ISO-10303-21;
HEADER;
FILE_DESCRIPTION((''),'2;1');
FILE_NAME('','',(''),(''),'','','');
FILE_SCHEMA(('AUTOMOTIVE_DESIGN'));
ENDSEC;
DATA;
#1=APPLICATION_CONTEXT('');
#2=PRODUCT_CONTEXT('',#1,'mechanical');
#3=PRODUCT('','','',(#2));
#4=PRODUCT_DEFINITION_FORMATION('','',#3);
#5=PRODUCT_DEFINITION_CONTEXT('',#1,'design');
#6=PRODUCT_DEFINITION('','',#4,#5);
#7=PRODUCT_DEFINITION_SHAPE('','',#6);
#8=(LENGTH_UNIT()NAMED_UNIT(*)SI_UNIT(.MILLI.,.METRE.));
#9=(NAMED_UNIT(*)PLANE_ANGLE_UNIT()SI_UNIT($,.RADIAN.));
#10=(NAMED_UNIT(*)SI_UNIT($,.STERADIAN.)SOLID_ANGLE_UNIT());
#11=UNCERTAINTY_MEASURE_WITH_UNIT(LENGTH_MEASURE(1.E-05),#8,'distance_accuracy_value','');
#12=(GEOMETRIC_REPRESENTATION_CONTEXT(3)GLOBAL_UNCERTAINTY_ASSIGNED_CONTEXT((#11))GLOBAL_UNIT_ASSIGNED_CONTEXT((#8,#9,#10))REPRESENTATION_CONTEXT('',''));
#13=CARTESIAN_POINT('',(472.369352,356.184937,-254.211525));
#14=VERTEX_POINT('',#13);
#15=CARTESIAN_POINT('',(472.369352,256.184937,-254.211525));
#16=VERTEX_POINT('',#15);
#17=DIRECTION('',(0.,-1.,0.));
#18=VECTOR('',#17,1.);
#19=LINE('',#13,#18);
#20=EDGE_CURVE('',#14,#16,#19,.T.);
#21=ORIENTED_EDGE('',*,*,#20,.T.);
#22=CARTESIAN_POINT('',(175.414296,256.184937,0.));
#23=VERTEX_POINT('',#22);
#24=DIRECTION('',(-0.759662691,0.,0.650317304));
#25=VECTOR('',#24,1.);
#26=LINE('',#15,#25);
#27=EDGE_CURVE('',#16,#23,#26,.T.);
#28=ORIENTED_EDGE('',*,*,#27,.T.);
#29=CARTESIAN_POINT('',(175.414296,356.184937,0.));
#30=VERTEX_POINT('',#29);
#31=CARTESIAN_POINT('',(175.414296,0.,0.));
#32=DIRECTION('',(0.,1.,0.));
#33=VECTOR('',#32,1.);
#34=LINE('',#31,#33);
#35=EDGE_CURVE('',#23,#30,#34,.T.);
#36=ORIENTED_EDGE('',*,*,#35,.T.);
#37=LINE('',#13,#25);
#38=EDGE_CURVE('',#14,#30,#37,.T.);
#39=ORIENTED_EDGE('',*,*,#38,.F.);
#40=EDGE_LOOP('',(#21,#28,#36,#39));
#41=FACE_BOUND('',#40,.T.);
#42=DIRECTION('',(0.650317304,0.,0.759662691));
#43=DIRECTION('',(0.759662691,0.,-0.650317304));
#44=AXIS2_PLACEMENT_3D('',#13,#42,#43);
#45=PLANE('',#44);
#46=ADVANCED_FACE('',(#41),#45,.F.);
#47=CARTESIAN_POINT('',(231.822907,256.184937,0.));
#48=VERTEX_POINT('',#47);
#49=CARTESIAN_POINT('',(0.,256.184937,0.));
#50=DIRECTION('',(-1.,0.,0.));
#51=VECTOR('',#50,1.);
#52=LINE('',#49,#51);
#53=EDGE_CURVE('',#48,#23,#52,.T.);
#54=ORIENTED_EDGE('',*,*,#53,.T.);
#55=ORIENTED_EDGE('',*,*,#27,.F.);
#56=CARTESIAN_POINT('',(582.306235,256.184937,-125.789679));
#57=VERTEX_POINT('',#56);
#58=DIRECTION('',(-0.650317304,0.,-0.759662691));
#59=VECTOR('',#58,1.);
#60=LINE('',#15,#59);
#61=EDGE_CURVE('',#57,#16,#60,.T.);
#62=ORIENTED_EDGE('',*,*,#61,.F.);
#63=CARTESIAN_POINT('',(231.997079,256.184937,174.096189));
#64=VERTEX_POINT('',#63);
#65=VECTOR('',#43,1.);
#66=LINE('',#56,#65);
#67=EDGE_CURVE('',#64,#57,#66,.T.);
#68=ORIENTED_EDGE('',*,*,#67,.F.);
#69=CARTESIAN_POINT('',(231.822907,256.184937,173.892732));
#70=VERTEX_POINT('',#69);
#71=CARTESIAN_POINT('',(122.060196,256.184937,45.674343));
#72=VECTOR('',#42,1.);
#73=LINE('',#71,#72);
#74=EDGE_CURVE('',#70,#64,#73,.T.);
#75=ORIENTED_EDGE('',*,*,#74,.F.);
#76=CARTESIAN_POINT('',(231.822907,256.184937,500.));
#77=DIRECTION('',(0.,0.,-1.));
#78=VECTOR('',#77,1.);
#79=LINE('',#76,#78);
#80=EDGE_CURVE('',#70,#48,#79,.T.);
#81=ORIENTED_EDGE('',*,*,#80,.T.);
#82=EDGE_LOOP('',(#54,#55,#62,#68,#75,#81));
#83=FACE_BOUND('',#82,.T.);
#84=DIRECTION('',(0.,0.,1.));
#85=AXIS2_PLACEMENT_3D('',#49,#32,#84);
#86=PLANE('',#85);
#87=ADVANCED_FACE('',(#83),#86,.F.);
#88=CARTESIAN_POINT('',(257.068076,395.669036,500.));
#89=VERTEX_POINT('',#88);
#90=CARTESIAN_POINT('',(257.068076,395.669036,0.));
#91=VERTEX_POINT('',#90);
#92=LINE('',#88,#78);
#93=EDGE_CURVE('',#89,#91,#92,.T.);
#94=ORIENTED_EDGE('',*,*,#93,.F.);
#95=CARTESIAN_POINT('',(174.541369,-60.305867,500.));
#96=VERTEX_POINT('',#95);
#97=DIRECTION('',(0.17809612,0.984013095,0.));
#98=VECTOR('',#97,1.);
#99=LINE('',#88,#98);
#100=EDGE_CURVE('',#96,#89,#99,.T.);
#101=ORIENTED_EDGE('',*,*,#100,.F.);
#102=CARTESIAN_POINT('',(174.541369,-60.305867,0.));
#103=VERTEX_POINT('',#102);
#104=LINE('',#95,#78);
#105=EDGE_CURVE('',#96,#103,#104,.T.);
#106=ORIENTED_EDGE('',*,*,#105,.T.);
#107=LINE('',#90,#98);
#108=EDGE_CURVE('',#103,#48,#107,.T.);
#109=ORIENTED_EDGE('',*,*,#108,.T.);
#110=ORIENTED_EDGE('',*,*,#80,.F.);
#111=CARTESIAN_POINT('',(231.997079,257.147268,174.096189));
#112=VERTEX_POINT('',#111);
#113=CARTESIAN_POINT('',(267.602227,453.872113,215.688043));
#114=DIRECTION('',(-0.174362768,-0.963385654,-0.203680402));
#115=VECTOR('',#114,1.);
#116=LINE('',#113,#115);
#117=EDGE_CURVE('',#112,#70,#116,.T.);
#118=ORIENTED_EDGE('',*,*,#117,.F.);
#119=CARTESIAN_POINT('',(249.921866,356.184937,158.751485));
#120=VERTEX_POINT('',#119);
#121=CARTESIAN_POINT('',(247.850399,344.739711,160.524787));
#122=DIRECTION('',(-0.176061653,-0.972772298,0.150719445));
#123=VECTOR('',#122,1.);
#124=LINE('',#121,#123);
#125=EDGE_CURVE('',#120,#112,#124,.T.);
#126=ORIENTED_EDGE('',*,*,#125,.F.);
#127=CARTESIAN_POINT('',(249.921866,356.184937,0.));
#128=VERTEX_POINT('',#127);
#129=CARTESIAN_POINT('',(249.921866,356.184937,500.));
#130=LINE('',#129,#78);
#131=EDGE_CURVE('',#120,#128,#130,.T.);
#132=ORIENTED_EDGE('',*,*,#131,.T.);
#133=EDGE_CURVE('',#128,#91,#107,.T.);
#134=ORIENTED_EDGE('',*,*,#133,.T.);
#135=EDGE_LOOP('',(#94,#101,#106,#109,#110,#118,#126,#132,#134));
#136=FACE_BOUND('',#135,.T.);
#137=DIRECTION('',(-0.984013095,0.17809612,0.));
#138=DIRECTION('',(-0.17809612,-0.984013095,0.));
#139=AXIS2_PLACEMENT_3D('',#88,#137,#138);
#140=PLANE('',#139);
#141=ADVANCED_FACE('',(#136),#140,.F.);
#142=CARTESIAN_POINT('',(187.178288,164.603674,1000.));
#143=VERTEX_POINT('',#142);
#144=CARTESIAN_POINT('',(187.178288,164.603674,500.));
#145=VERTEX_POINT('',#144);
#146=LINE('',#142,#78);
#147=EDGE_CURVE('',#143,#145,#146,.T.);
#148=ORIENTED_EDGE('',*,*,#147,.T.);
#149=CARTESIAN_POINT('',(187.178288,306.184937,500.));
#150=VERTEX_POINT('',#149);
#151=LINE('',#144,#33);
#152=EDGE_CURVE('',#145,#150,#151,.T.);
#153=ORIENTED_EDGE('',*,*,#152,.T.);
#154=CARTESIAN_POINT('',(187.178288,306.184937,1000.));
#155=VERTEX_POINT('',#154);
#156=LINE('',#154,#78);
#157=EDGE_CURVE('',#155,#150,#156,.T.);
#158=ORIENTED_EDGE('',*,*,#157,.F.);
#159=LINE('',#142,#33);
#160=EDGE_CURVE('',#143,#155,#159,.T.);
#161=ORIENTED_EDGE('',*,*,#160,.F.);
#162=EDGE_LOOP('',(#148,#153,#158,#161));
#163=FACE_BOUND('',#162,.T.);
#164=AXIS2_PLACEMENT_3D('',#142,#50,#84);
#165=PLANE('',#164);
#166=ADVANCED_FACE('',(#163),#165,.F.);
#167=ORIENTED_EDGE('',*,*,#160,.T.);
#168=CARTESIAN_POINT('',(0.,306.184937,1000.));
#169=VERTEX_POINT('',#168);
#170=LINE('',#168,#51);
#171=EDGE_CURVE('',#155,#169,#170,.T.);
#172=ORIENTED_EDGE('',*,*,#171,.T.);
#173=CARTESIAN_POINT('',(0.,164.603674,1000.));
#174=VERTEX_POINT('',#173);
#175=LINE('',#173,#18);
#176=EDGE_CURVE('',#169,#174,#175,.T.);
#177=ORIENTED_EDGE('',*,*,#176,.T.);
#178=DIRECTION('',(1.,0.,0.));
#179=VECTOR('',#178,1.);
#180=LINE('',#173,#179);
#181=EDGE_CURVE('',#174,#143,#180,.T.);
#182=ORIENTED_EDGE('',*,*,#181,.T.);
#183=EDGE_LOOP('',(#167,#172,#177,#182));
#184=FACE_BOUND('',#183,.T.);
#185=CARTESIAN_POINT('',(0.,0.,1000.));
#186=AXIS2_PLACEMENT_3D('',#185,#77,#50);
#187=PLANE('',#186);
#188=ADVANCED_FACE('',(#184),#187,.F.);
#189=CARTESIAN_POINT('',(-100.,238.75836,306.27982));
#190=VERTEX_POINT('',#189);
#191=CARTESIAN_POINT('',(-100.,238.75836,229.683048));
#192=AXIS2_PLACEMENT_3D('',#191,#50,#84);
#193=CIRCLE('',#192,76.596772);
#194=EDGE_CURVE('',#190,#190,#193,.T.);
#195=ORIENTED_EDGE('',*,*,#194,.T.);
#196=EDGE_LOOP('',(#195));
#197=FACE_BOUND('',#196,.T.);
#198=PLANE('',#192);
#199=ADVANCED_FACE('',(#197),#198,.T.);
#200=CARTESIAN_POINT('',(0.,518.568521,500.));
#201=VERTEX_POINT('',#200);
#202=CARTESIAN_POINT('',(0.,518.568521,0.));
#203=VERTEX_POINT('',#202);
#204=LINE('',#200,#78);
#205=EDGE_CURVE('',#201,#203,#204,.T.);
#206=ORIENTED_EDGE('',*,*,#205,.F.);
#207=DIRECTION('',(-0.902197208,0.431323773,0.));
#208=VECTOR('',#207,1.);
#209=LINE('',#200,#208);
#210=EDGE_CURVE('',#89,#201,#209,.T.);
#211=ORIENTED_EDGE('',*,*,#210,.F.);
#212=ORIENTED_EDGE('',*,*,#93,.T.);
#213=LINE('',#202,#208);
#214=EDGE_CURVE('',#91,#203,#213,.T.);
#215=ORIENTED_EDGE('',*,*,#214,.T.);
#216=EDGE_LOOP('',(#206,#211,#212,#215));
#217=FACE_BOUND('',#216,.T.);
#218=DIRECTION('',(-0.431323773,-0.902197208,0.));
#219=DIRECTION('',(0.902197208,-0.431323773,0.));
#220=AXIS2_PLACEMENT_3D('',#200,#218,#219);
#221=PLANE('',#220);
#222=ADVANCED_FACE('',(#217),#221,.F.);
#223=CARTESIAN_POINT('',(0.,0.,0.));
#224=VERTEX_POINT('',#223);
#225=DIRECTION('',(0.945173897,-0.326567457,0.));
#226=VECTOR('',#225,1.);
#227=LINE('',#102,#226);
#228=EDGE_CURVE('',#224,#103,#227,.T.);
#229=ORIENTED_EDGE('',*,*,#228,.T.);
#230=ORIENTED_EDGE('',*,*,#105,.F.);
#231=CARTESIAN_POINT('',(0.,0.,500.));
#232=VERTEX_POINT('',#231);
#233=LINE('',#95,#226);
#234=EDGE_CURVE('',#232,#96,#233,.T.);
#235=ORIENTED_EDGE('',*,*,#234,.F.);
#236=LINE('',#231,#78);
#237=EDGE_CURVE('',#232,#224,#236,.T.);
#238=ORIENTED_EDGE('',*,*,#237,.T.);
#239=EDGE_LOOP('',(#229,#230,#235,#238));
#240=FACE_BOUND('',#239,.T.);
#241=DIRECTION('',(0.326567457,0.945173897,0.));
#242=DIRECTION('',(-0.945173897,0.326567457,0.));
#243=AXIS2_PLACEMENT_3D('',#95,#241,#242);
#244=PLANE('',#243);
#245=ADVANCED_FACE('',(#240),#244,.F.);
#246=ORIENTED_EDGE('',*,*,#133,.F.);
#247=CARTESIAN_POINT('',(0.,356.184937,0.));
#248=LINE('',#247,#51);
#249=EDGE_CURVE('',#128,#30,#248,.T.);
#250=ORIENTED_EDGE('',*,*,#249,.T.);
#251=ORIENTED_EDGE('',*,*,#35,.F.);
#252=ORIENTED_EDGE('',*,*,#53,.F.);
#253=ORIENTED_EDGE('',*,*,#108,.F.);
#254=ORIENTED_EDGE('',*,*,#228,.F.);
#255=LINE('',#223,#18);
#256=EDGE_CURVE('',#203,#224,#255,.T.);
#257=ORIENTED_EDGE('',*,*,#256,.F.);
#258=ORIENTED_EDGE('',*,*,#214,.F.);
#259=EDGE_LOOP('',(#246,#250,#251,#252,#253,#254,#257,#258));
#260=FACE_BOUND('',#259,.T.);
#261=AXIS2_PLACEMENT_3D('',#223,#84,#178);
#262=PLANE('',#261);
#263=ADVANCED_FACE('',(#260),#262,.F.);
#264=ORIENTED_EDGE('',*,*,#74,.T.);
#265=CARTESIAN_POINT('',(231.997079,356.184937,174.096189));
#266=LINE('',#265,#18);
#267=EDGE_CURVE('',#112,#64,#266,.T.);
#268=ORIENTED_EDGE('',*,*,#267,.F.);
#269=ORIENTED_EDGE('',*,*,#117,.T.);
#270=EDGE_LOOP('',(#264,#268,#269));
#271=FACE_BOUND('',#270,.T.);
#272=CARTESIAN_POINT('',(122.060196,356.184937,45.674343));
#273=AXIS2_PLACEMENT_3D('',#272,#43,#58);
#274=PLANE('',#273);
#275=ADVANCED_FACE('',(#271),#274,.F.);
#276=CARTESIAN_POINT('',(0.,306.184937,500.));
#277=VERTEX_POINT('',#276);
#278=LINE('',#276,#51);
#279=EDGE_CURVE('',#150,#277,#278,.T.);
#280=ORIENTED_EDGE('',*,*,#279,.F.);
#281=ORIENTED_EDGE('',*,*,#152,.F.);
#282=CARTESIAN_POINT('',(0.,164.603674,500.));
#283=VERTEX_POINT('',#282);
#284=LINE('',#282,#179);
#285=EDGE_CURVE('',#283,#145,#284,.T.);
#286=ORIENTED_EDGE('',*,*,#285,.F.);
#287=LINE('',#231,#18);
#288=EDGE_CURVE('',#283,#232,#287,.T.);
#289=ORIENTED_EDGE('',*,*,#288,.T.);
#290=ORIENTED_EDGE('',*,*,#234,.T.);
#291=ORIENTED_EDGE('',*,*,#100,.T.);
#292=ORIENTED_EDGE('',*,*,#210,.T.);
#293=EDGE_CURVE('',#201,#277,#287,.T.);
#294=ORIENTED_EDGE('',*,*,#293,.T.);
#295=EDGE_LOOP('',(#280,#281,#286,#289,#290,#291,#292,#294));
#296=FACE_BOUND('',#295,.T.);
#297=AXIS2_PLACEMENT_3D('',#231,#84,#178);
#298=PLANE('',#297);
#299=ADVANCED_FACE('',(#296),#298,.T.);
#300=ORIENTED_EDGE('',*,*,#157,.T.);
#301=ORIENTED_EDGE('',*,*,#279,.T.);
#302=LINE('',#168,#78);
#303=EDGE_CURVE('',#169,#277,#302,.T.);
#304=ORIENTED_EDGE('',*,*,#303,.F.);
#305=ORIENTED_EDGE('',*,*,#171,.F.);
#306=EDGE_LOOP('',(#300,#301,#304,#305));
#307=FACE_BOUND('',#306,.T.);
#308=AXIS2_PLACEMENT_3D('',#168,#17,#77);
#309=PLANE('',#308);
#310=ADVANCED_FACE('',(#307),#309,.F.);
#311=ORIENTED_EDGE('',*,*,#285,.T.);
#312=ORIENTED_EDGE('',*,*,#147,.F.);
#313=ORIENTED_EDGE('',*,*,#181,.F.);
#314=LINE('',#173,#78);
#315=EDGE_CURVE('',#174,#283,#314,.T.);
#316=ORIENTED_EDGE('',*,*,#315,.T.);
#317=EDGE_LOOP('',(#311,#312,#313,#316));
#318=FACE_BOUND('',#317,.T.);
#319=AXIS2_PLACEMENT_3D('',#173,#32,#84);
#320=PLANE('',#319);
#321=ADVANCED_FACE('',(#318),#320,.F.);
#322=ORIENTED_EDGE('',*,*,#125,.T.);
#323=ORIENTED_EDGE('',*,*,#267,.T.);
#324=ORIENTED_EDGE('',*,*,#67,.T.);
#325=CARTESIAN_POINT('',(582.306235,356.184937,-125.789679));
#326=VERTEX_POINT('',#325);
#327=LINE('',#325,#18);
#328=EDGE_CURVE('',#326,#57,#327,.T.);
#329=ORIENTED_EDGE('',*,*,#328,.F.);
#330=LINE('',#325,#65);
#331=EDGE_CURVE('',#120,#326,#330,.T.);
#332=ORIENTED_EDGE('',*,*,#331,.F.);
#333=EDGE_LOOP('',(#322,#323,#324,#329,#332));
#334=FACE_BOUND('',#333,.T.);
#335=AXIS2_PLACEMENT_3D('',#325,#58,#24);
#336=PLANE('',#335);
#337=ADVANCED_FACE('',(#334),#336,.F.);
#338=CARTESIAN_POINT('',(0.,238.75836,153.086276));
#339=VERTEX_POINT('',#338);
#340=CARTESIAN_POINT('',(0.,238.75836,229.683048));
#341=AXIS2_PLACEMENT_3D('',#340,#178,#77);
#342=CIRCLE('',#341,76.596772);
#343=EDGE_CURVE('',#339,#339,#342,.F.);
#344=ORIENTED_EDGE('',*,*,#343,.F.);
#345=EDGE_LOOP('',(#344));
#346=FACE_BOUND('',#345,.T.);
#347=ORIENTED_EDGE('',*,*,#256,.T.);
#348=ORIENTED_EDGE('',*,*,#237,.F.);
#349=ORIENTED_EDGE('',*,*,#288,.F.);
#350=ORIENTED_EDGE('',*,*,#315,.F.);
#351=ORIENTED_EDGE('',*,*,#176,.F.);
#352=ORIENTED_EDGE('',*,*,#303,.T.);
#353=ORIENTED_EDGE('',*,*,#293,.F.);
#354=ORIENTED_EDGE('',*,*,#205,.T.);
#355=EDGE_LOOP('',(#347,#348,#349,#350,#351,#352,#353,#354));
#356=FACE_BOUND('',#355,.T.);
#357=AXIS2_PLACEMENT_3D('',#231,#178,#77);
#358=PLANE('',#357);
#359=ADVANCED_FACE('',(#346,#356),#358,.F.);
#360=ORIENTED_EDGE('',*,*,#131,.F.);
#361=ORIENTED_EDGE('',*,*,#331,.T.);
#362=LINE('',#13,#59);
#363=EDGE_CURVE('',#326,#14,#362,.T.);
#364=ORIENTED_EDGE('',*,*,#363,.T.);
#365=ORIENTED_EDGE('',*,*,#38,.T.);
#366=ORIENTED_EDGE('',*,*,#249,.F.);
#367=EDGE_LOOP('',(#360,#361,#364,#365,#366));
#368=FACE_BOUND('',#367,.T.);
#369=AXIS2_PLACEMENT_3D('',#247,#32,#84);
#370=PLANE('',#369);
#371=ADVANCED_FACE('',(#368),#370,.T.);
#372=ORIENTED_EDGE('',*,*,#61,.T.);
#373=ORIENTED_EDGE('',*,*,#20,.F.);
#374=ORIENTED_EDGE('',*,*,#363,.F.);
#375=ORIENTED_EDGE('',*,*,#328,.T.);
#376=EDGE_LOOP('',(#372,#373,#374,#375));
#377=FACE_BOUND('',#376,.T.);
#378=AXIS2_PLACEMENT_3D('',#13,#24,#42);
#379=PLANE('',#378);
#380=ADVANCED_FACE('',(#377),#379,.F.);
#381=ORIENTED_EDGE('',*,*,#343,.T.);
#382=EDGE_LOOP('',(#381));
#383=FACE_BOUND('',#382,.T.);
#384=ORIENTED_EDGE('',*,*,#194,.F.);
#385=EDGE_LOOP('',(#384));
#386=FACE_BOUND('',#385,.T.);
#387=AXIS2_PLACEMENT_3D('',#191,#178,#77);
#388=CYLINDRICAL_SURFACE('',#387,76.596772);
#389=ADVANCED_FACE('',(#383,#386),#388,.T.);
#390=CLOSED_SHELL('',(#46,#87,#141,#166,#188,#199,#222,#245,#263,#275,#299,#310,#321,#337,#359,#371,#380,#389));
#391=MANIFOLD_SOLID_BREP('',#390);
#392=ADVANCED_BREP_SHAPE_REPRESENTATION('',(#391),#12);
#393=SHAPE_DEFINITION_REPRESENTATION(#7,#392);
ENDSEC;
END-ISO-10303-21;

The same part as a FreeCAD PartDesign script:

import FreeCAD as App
import Part
import Sketcher

V = App.Vector
Q = App.Units.Quantity

doc = App.newDocument("Part")
params = doc.addObject("Spreadsheet::Sheet", "Params")
for row, (alias, value) in enumerate([
    ("pad1_length", "500 mm"),
    ("pad2_length", "500 mm"),
    ("pad3_length", "100 mm"),
    ("pad4_length", "100 mm"),
], start=1):
    params.set(f"A{row}", alias)
    params.set(f"B{row}", "=" + value)
    params.setAlias(f"B{row}", alias)

body = doc.addObject("PartDesign::Body", "Body")

sketch1 = body.newObject("Sketcher::SketchObject", "Sketch")
sketch1.AttachmentSupport = (doc.getObject("XY_Plane"), [""])
sketch1.MapMode = "FlatFace"
sketch1.addGeometry(Part.LineSegment(V(0, 518.568521, 0), V(0, 0, 0)), False)
sketch1.addGeometry(Part.LineSegment(V(0, 0, 0), V(174.541369, -60.305867, 0)), False)
sketch1.addGeometry(Part.LineSegment(V(174.541369, -60.305867, 0), V(257.068076, 395.669036, 0)), False)
sketch1.addGeometry(Part.LineSegment(V(257.068076, 395.669036, 0), V(0, 518.568521, 0)), False)
sketch1.addConstraint(Sketcher.Constraint("Coincident", 0, 2, 1, 1))
sketch1.addConstraint(Sketcher.Constraint("Coincident", 1, 2, 2, 1))
sketch1.addConstraint(Sketcher.Constraint("Coincident", 2, 2, 3, 1))
sketch1.addConstraint(Sketcher.Constraint("Coincident", 3, 2, 0, 1))
sketch1.addConstraint(Sketcher.Constraint("Vertical", 0))
sketch1.addConstraint(Sketcher.Constraint("Coincident", 0, 2, -1, 1))
sketch1.addConstraint(Sketcher.Constraint("DistanceY", 0, 2, 0, 1, Q("518.568521 mm")))
sketch1.addConstraint(Sketcher.Constraint("Distance", 1, Q("184.665879 mm")))
sketch1.addConstraint(Sketcher.Constraint("Distance", 2, Q("463.382962 mm")))
sketch1.addConstraint(Sketcher.Constraint("Distance", 3, Q("284.93557 mm")))
sketch1.addConstraint(Sketcher.Constraint("DistanceX", -1, 1, 1, 2, Q("174.541369 mm")))
pad1 = body.newObject("PartDesign::Pad", "Pad")
pad1.Profile = sketch1
pad1.setExpression("Length", "Params.pad1_length")

sketch2 = body.newObject("Sketcher::SketchObject", "Sketch001")
sketch2.AttachmentSupport = (doc.getObject("XY_Plane"), [""])
sketch2.MapMode = "FlatFace"
sketch2.AttachmentOffset = App.Placement(V(0, 0, 500), App.Rotation())
sketch2.addGeometry(Part.LineSegment(V(0, 306.184937, 0), V(0, 164.603674, 0)), False)
sketch2.addGeometry(Part.LineSegment(V(0, 164.603674, 0), V(187.178288, 164.603674, 0)), False)
sketch2.addGeometry(Part.LineSegment(V(187.178288, 164.603674, 0), V(187.178288, 306.184937, 0)), False)
sketch2.addGeometry(Part.LineSegment(V(187.178288, 306.184937, 0), V(0, 306.184937, 0)), False)
sketch2.addConstraint(Sketcher.Constraint("Coincident", 0, 2, 1, 1))
sketch2.addConstraint(Sketcher.Constraint("Coincident", 1, 2, 2, 1))
sketch2.addConstraint(Sketcher.Constraint("Coincident", 2, 2, 3, 1))
sketch2.addConstraint(Sketcher.Constraint("Coincident", 3, 2, 0, 1))
sketch2.addConstraint(Sketcher.Constraint("Vertical", 0))
sketch2.addConstraint(Sketcher.Constraint("Horizontal", 1))
sketch2.addConstraint(Sketcher.Constraint("Vertical", 2))
sketch2.addConstraint(Sketcher.Constraint("Horizontal", 3))
sketch2.addConstraint(Sketcher.Constraint("PointOnObject", 0, 2, -2))
sketch2.addConstraint(Sketcher.Constraint("DistanceX", 1, 1, 1, 2, Q("187.178288 mm")))
sketch2.addConstraint(Sketcher.Constraint("DistanceY", 0, 2, 0, 1, Q("141.581264 mm")))
sketch2.addConstraint(Sketcher.Constraint("DistanceY", -1, 1, 0, 2, Q("164.603674 mm")))
pad2 = body.newObject("PartDesign::Pad", "Pad001")
pad2.Profile = sketch2
pad2.setExpression("Length", "Params.pad2_length")

sketch3 = body.newObject("Sketcher::SketchObject", "Sketch002")
sketch3.AttachmentSupport = (doc.getObject("YZ_Plane"), [""])
sketch3.MapMode = "FlatFace"
sketch3.addGeometry(Part.Circle(V(238.75836, 229.683048, 0), V(0, 0, 1), 76.596772), False)
sketch3.addConstraint(Sketcher.Constraint("Diameter", 0, Q("153.193544 mm")))
sketch3.addConstraint(Sketcher.Constraint("DistanceX", -1, 1, 0, 3, Q("238.75836 mm")))
sketch3.addConstraint(Sketcher.Constraint("DistanceY", -1, 1, 0, 3, Q("229.683048 mm")))
pad3 = body.newObject("PartDesign::Pad", "Pad002")
pad3.Profile = sketch3
pad3.setExpression("Length", "Params.pad3_length")
pad3.Reversed = True

sketch4 = body.newObject("Sketcher::SketchObject", "Sketch003")
sketch4.AttachmentSupport = (doc.getObject("XZ_Plane"), [""])
sketch4.MapMode = "FlatFace"
sketch4.AttachmentOffset = App.Placement(V(0, 0, -306.184937), App.Rotation())
sketch4.addGeometry(Part.LineSegment(V(582.306235, -125.789679, 0), V(472.369352, -254.211525, 0)), False)
sketch4.addGeometry(Part.LineSegment(V(472.369352, -254.211525, 0), V(122.060196, 45.674343, 0)), False)
sketch4.addGeometry(Part.LineSegment(V(122.060196, 45.674343, 0), V(231.997079, 174.096189, 0)), False)
sketch4.addGeometry(Part.LineSegment(V(231.997079, 174.096189, 0), V(582.306235, -125.789679, 0)), False)
sketch4.addConstraint(Sketcher.Constraint("Coincident", 0, 2, 1, 1))
sketch4.addConstraint(Sketcher.Constraint("Coincident", 1, 2, 2, 1))
sketch4.addConstraint(Sketcher.Constraint("Coincident", 2, 2, 3, 1))
sketch4.addConstraint(Sketcher.Constraint("Coincident", 3, 2, 0, 1))
sketch4.addConstraint(Sketcher.Constraint("Perpendicular", 0, 1))
sketch4.addConstraint(Sketcher.Constraint("Perpendicular", 1, 2))
sketch4.addConstraint(Sketcher.Constraint("Perpendicular", 2, 3))
sketch4.addConstraint(Sketcher.Constraint("DistanceX", -1, 1, 0, 2, Q("472.369352 mm")))
sketch4.addConstraint(Sketcher.Constraint("DistanceX", -1, 1, 2, 2, Q("231.997079 mm")))
sketch4.addConstraint(Sketcher.Constraint("DistanceY", -1, 1, 2, 2, Q("174.096189 mm")))
sketch4.addConstraint(Sketcher.Constraint("DistanceY", 3, 2, -1, 1, Q("125.789679 mm")))
sketch4.addConstraint(Sketcher.Constraint("DistanceX", 1, 2, 3, 2, Q("460.246039 mm")))
pad4 = body.newObject("PartDesign::Pad", "Pad003")
pad4.Profile = sketch4
pad4.setExpression("Length", "Params.pad4_length")
pad4.Midplane = True

doc.recompute()
